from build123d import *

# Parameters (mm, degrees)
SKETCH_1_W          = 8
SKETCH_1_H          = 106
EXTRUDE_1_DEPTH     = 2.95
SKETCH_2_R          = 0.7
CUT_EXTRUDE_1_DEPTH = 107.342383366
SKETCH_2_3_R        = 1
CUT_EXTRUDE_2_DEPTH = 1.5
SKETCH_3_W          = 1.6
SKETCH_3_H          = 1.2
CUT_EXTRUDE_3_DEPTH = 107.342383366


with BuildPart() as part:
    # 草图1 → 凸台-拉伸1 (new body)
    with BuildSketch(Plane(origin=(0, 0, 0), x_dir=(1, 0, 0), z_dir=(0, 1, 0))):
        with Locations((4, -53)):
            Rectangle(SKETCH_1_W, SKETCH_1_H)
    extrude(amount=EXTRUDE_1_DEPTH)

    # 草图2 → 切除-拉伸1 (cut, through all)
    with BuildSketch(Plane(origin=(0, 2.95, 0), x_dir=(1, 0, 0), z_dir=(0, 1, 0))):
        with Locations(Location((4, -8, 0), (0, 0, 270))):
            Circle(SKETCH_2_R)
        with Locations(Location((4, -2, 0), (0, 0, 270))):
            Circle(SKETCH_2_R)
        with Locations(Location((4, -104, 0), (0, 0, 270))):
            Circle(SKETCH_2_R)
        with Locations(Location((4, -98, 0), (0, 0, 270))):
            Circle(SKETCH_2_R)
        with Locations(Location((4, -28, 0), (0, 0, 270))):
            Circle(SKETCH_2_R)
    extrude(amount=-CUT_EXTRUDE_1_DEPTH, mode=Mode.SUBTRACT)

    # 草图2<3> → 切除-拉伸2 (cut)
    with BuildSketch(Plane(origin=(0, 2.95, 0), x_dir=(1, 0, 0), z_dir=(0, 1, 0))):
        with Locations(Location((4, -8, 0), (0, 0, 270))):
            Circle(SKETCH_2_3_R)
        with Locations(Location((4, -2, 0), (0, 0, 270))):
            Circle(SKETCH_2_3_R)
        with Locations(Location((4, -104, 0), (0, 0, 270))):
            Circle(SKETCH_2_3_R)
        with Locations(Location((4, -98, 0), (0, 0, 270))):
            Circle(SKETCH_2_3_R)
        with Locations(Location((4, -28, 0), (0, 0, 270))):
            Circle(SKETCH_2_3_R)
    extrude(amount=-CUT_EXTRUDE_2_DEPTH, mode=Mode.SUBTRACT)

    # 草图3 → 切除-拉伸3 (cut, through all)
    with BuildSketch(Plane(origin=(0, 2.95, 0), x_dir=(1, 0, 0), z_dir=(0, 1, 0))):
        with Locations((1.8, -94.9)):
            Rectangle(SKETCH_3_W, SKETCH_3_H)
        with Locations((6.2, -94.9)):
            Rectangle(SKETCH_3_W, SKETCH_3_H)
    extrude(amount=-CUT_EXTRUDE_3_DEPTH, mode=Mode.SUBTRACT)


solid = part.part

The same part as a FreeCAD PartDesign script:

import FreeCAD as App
import Part
import Sketcher

V = App.Vector

doc = App.newDocument("Part")
body = doc.addObject("PartDesign::Body", "Body")

sketch1 = body.newObject("Sketcher::SketchObject", "Sketch")
sketch1.AttachmentSupport = (doc.getObject("XZ_Plane"), [""])
sketch1.MapMode = "FlatFace"
sketch1.addGeometry(Part.LineSegment(V(0, 0, 0), V(0, 106, 0)), False)
sketch1.addGeometry(Part.LineSegment(V(0, 106, 0), V(8, 106, 0)), False)
sketch1.addGeometry(Part.LineSegment(V(8, 106, 0), V(8, 0, 0)), False)
sketch1.addGeometry(Part.LineSegment(V(8, 0, 0), V(0, 0, 0)), False)
sketch1.addConstraint(Sketcher.Constraint("Coincident", 0, 2, 1, 1))
sketch1.addConstraint(Sketcher.Constraint("Coincident", 1, 2, 2, 1))
sketch1.addConstraint(Sketcher.Constraint("Coincident", 2, 2, 3, 1))
sketch1.addConstraint(Sketcher.Constraint("Coincident", 3, 2, 0, 1))
sketch1.addConstraint(Sketcher.Constraint("Vertical", 0))
sketch1.addConstraint(Sketcher.Constraint("Horizontal", 1))
sketch1.addConstraint(Sketcher.Constraint("Vertical", 2))
sketch1.addConstraint(Sketcher.Constraint("Horizontal", 3))
sketch1.addConstraint(Sketcher.Constraint("Coincident", 3, 2, -1, 1))
sketch1.addConstraint(Sketcher.Constraint("DistanceX", 1, 1, 1, 2, 8.0))
sketch1.addConstraint(Sketcher.Constraint("DistanceY", 0, 1, 0, 2, 106.0))
pad1 = body.newObject("PartDesign::Pad", "Pad")
pad1.Profile = sketch1
pad1.Length = 2.95
pad1.Reversed = True

sketch2 = body.newObject("Sketcher::SketchObject", "Sketch001")
sketch2.AttachmentSupport = (doc.getObject("XZ_Plane"), [""])
sketch2.MapMode = "FlatFace"
sketch2.AttachmentOffset = App.Placement(V(0, 0, -2.95), App.Rotation())
sketch2.addGeometry(Part.Circle(V(4, 8, 0), V(0, 0, 1), 0.7), False)
sketch2.addGeometry(Part.Circle(V(4, 2, 0), V(0, 0, 1), 0.7), False)
sketch2.addGeometry(Part.Circle(V(4, 104, 0), V(0, 0, 1), 0.7), False)
sketch2.addGeometry(Part.Circle(V(4, 98, 0), V(0, 0, 1), 0.7), False)
sketch2.addGeometry(Part.Circle(V(4, 28, 0), V(0, 0, 1), 0.7), False)
sketch2.addConstraint(Sketcher.Constraint("Equal", 0, 1))
sketch2.addConstraint(Sketcher.Constraint("Equal", 1, 2))
sketch2.addConstraint(Sketcher.Constraint("Equal", 2, 3))
sketch2.addConstraint(Sketcher.Constraint("Equal", 3, 4))
sketch2.addConstraint(Sketcher.Constraint("Vertical", 0, 3, 1, 3))
sketch2.addConstraint(Sketcher.Constraint("Vertical", 1, 3, 2, 3))
sketch2.addConstraint(Sketcher.Constraint("Vertical", 2, 3, 3, 3))
sketch2.addConstraint(Sketcher.Constraint("Vertical", 3, 3, 4, 3))
sketch2.addConstraint(Sketcher.Constraint("Diameter", 0, 1.4))
sketch2.addConstraint(Sketcher.Constraint("DistanceX", -1, 1, 0, 3, 4.0))
sketch2.addConstraint(Sketcher.Constraint("DistanceY", -1, 1, 0, 3, 8.0))
sketch2.addConstraint(Sketcher.Constraint("DistanceY", -1, 1, 1, 3, 2.0))
sketch2.addConstraint(Sketcher.Constraint("DistanceY", -1, 1, 2, 3, 104.0))
sketch2.addConstraint(Sketcher.Constraint("DistanceY", -1, 1, 3, 3, 98.0))
sketch2.addConstraint(Sketcher.Constraint("DistanceY", -1, 1, 4, 3, 28.0))
pocket1 = body.newObject("PartDesign::Pocket", "Pocket")
pocket1.Profile = sketch2
pocket1.Type = "ThroughAll"
pocket1.Reversed = True

sketch3 = body.newObject("Sketcher::SketchObject", "Sketch002")
sketch3.AttachmentSupport = (doc.getObject("XZ_Plane"), [""])
sketch3.MapMode = "FlatFace"
sketch3.AttachmentOffset = App.Placement(V(0, 0, -2.95), App.Rotation())
sketch3.addGeometry(Part.Circle(V(4, 8, 0), V(0, 0, 1), 1), False)
sketch3.addGeometry(Part.Circle(V(4, 2, 0), V(0, 0, 1), 1), False)
sketch3.addGeometry(Part.Circle(V(4, 104, 0), V(0, 0, 1), 1), False)
sketch3.addGeometry(Part.Circle(V(4, 98, 0), V(0, 0, 1), 1), False)
sketch3.addGeometry(Part.Circle(V(4, 28, 0), V(0, 0, 1), 1), False)
sketch3.addConstraint(Sketcher.Constraint("Equal", 0, 1))
sketch3.addConstraint(Sketcher.Constraint("Equal", 1, 2))
sketch3.addConstraint(Sketcher.Constraint("Equal", 2, 3))
sketch3.addConstraint(Sketcher.Constraint("Equal", 3, 4))
sketch3.addConstraint(Sketcher.Constraint("Vertical", 0, 3, 1, 3))
sketch3.addConstraint(Sketcher.Constraint("Vertical", 1, 3, 2, 3))
sketch3.addConstraint(Sketcher.Constraint("Vertical", 2, 3, 3, 3))
sketch3.addConstraint(Sketcher.Constraint("Vertical", 3, 3, 4, 3))
sketch3.addConstraint(Sketcher.Constraint("Diameter", 0, 2.0))
sketch3.addConstraint(Sketcher.Constraint("DistanceX", -1, 1, 0, 3, 4.0))
sketch3.addConstraint(Sketcher.Constraint("DistanceY", -1, 1, 0, 3, 8.0))
sketch3.addConstraint(Sketcher.Constraint("DistanceY", -1, 1, 1, 3, 2.0))
sketch3.addConstraint(Sketcher.Constraint("DistanceY", -1, 1, 2, 3, 104.0))
sketch3.addConstraint(Sketcher.Constraint("DistanceY", -1, 1, 3, 3, 98.0))
sketch3.addConstraint(Sketcher.Constraint("DistanceY", -1, 1, 4, 3, 28.0))
pocket2 = body.newObject("PartDesign::Pocket", "Pocket001")
pocket2.Profile = sketch3
pocket2.Length = 1.5
pocket2.Reversed = True

sketch4 = body.newObject("Sketcher::SketchObject", "Sketch003")
sketch4.AttachmentSupport = (doc.getObject("XZ_Plane"), [""])
sketch4.MapMode = "FlatFace"
sketch4.AttachmentOffset = App.Placement(V(0, 0, -2.95), App.Rotation())
sketch4.addGeometry(Part.LineSegment(V(1, 94.3, 0), V(1, 95.5, 0)), False)
sketch4.addGeometry(Part.LineSegment(V(1, 95.5, 0), V(2.6, 95.5, 0)), False)
sketch4.addGeometry(Part.LineSegment(V(2.6, 95.5, 0), V(2.6, 94.3, 0)), False)
sketch4.addGeometry(Part.LineSegment(V(2.6, 94.3, 0), V(1, 94.3, 0)), False)
sketch4.addGeometry(Part.LineSegment(V(5.4, 94.3, 0), V(5.4, 95.5, 0)), False)
sketch4.addGeometry(Part.LineSegment(V(5.4, 95.5, 0), V(7, 95.5, 0)), False)
sketch4.addGeometry(Part.LineSegment(V(7, 95.5, 0), V(7, 94.3, 0)), False)
sketch4.addGeometry(Part.LineSegment(V(7, 94.3, 0), V(5.4, 94.3, 0)), False)
sketch4.addConstraint(Sketcher.Constraint("Coincident", 0, 2, 1, 1))
sketch4.addConstraint(Sketcher.Constraint("Coincident", 1, 2, 2, 1))
sketch4.addConstraint(Sketcher.Constraint("Coincident", 2, 2, 3, 1))
sketch4.addConstraint(Sketcher.Constraint("Coincident", 3, 2, 0, 1))
sketch4.addConstraint(Sketcher.Constraint("Coincident", 4, 2, 5, 1))
sketch4.addConstraint(Sketcher.Constraint("Coincident", 5, 2, 6, 1))
sketch4.addConstraint(Sketcher.Constraint("Coincident", 6, 2, 7, 1))
sketch4.addConstraint(Sketcher.Constraint("Coincident", 7, 2, 4, 1))
sketch4.addConstraint(Sketcher.Constraint("Vertical", 0))
sketch4.addConstraint(Sketcher.Constraint("Horizontal", 1))
sketch4.addConstraint(Sketcher.Constraint("Vertical", 2))
sketch4.addConstraint(Sketcher.Constraint("Horizontal", 3))
sketch4.addConstraint(Sketcher.Constraint("Vertical", 4))
sketch4.addConstraint(Sketcher.Constraint("Horizontal", 5))
sketch4.addConstraint(Sketcher.Constraint("Vertical", 6))
sketch4.addConstraint(Sketcher.Constraint("Horizontal", 7))
sketch4.addConstraint(Sketcher.Constraint("Horizontal", 1, 2, 4, 2))
sketch4.addConstraint(Sketcher.Constraint("Horizontal", 3, 2, 6, 2))
sketch4.addConstraint(Sketcher.Constraint("Equal", 3, 5))
sketch4.addConstraint(Sketcher.Constraint("DistanceX", 1, 1, 1, 2, 1.6))
sketch4.addConstraint(Sketcher.Constraint("DistanceY", 0, 1, 0, 2, 1.2))
sketch4.addConstraint(Sketcher.Constraint("DistanceX", -1, 1, 0, 2, 1.0))
sketch4.addConstraint(Sketcher.Constraint("DistanceX", -1, 1, 5, 2, 7.0))
sketch4.addConstraint(Sketcher.Constraint("DistanceY", -1, 1, 0, 2, 95.5))
pocket3 = body.newObject("PartDesign::Pocket", "Pocket002")
pocket3.Profile = sketch4
pocket3.Type = "ThroughAll"
pocket3.Reversed = True

doc.recompute()
